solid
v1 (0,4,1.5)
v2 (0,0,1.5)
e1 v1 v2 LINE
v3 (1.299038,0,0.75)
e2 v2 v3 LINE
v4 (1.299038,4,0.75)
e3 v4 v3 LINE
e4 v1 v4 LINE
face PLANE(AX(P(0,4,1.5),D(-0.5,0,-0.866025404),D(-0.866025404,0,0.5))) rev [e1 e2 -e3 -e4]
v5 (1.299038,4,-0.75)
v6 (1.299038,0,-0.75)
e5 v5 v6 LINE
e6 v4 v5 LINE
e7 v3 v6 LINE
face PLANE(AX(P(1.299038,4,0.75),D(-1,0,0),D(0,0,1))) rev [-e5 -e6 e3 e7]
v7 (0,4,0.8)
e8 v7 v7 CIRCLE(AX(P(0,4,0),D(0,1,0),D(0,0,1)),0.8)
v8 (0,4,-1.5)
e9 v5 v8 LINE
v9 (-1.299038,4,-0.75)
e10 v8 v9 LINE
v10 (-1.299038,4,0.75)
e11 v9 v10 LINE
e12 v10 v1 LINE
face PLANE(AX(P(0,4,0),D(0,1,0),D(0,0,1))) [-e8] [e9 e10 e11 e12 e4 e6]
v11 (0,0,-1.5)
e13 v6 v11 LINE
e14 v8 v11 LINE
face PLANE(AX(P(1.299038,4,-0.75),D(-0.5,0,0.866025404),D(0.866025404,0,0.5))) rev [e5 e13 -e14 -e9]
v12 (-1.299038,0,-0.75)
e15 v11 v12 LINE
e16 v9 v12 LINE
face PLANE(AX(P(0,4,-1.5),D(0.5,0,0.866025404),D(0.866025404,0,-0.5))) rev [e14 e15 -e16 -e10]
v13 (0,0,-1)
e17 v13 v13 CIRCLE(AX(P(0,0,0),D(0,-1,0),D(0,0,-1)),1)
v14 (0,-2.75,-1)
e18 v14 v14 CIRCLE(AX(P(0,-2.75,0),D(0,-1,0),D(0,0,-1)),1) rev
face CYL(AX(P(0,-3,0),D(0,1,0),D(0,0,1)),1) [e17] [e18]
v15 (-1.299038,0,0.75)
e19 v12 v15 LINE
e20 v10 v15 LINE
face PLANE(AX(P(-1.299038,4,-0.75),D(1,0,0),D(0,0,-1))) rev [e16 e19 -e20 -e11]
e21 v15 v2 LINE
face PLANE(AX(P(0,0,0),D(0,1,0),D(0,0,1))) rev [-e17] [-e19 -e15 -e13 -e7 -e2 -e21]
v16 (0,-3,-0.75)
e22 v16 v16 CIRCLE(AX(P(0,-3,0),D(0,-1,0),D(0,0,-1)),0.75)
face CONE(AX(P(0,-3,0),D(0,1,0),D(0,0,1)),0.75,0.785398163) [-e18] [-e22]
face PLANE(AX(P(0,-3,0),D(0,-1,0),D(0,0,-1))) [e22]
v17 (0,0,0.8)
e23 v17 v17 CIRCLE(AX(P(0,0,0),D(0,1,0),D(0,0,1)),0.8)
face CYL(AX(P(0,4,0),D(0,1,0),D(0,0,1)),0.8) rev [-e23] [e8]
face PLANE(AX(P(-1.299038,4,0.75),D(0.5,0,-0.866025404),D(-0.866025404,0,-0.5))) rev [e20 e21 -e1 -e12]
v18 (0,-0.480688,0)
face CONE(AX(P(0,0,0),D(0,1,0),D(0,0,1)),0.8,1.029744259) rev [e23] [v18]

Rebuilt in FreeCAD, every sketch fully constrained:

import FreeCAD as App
import Part
import Sketcher
Q = App.Units.Quantity


def edges_at(feature, points):
    """Names of the edges that pass closest to the given points."""
    edges = feature.Shape.Edges
    near = lambda p: min(range(len(edges)), key=lambda i: edges[i].distToShape(Part.Vertex(*p))[0])
    return sorted({f"Edge{near(p) + 1}" for p in points})


def add_polygon(sketch, points):
    """Adds a closed chain of lines whose ends are joined by coincident constraints."""
    first, n = sketch.GeometryCount, len(points)
    for a, b in zip(points, points[1:] + points[:1]):
        sketch.addGeometry(Part.LineSegment(App.Vector(*a, 0), App.Vector(*b, 0)), False)
    for i in range(n):
        sketch.addConstraint(Sketcher.Constraint("Coincident", first + i, 2, first + (i + 1) % n, 1))

doc = App.newDocument("Part")
params = doc.addObject("Spreadsheet::Sheet", "Params")
for row, (alias, value) in enumerate([
    ("sketch1_height", "1.5 mm"),
    ("pad1_length", "4 mm"),
    ("sketch2_diameter", "2 mm"),
    ("pad2_length", "3 mm"),
    ("chamfer_size", "0.25 mm"),
    ("sketch3_diameter", "1.6 mm"),
    ("hole_diameter", "1.6 mm"),
    ("hole_depth", "4 mm"),
], start=1):
    params.set(f"A{row}", alias)
    params.set(f"B{row}", "=" + value)
    params.setAlias(f"B{row}", alias)

body = doc.addObject("PartDesign::Body", "Body")

# Sketch on XZ plane
sketch1 = body.newObject("Sketcher::SketchObject", "Sketch")
sketch1.AttachmentSupport = (doc.getObject("XZ_Plane"), [""])
sketch1.MapMode = "FlatFace"
add_polygon(sketch1, [(0, -1.5), (-1.3, -0.8), (-1.3, 0.8), (0, 1.5), (1.3, 0.8), (1.3, -0.8)])  # lines 0-5
sketch1.addConstraint([
    Sketcher.Constraint("Vertical", 1),
    Sketcher.Constraint("Vertical", 4),
    Sketcher.Constraint("Symmetric", 0, 2, 3, 2, -1, 1),
    Sketcher.Constraint("Symmetric", 2, 2, 5, 2, -1, 1),
    Sketcher.Constraint("PointOnObject", 2, 2, -2),
    Sketcher.Constraint("Parallel", 2, 5),
    Sketcher.Constraint("Horizontal", 1, 2, 3, 2),
    Sketcher.Constraint("Angle", 0, Q("150 deg")),
    Sketcher.Constraint("DistanceY", 1, 1, 1, 2, Q("1.5 mm")),
    Sketcher.Constraint("DistanceY", 5, 2, 2, 2, Q("3 mm")),
])
sketch1.setExpression("Constraints[14]", "Params.sketch1_height")
pad1 = body.newObject("PartDesign::Pad", "Pad")
pad1.Profile = sketch1
pad1.setExpression("Length", "Params.pad1_length")
pad1.Reversed = True

# Sketch on XZ plane
sketch2 = body.newObject("Sketcher::SketchObject", "Sketch001")
sketch2.AttachmentSupport = (doc.getObject("XZ_Plane"), [""])
sketch2.MapMode = "FlatFace"
sketch2.addGeometry(Part.Circle(App.Vector(0, 0, 0), App.Vector(0, 0, 1), 1), False)
sketch2.addConstraint([
    Sketcher.Constraint("Coincident", 0, 3, -1, 1),
    Sketcher.Constraint("Diameter", 0, Q("2 mm")),
])
sketch2.setExpression("Constraints[1]", "Params.sketch2_diameter")
pad2 = body.newObject("PartDesign::Pad", "Pad001")
pad2.Profile = sketch2
pad2.setExpression("Length", "Params.pad2_length")
doc.recompute()

chamfer = body.newObject("PartDesign::Chamfer", "Chamfer")
chamfer.Base = (pad2, edges_at(pad2, [(0, -3, 1)]))
chamfer.setExpression("Size", "Params.chamfer_size")

# Sketch on XZ plane
sketch3 = body.newObject("Sketcher::SketchObject", "Sketch002")
sketch3.AttachmentSupport = (doc.getObject("XZ_Plane"), [""])
sketch3.MapMode = "FlatFace"
sketch3.AttachmentOffset = App.Placement(App.Vector(0, 0, -4), App.Rotation())
sketch3.addGeometry(Part.Circle(App.Vector(0, 0, 0), App.Vector(0, 0, 1), 0.8), False)
sketch3.addConstraint([
    Sketcher.Constraint("Coincident", 0, 3, -1, 1),
    Sketcher.Constraint("Diameter", 0, Q("1.6 mm")),
])
sketch3.setExpression("Constraints[1]", "Params.sketch3_diameter")
doc.recompute()
hole = body.newObject("PartDesign::Hole", "Hole")
hole.Profile = sketch3
hole.ThreadType = "None"
hole.setExpression("Diameter", "Params.hole_diameter")
hole.DepthType = "Dimension"
hole.setExpression("Depth", "Params.hole_depth")
hole.DrillPoint = "Angled"
hole.DrillPointAngle = 118
hole.Reversed = True

doc.recompute()
